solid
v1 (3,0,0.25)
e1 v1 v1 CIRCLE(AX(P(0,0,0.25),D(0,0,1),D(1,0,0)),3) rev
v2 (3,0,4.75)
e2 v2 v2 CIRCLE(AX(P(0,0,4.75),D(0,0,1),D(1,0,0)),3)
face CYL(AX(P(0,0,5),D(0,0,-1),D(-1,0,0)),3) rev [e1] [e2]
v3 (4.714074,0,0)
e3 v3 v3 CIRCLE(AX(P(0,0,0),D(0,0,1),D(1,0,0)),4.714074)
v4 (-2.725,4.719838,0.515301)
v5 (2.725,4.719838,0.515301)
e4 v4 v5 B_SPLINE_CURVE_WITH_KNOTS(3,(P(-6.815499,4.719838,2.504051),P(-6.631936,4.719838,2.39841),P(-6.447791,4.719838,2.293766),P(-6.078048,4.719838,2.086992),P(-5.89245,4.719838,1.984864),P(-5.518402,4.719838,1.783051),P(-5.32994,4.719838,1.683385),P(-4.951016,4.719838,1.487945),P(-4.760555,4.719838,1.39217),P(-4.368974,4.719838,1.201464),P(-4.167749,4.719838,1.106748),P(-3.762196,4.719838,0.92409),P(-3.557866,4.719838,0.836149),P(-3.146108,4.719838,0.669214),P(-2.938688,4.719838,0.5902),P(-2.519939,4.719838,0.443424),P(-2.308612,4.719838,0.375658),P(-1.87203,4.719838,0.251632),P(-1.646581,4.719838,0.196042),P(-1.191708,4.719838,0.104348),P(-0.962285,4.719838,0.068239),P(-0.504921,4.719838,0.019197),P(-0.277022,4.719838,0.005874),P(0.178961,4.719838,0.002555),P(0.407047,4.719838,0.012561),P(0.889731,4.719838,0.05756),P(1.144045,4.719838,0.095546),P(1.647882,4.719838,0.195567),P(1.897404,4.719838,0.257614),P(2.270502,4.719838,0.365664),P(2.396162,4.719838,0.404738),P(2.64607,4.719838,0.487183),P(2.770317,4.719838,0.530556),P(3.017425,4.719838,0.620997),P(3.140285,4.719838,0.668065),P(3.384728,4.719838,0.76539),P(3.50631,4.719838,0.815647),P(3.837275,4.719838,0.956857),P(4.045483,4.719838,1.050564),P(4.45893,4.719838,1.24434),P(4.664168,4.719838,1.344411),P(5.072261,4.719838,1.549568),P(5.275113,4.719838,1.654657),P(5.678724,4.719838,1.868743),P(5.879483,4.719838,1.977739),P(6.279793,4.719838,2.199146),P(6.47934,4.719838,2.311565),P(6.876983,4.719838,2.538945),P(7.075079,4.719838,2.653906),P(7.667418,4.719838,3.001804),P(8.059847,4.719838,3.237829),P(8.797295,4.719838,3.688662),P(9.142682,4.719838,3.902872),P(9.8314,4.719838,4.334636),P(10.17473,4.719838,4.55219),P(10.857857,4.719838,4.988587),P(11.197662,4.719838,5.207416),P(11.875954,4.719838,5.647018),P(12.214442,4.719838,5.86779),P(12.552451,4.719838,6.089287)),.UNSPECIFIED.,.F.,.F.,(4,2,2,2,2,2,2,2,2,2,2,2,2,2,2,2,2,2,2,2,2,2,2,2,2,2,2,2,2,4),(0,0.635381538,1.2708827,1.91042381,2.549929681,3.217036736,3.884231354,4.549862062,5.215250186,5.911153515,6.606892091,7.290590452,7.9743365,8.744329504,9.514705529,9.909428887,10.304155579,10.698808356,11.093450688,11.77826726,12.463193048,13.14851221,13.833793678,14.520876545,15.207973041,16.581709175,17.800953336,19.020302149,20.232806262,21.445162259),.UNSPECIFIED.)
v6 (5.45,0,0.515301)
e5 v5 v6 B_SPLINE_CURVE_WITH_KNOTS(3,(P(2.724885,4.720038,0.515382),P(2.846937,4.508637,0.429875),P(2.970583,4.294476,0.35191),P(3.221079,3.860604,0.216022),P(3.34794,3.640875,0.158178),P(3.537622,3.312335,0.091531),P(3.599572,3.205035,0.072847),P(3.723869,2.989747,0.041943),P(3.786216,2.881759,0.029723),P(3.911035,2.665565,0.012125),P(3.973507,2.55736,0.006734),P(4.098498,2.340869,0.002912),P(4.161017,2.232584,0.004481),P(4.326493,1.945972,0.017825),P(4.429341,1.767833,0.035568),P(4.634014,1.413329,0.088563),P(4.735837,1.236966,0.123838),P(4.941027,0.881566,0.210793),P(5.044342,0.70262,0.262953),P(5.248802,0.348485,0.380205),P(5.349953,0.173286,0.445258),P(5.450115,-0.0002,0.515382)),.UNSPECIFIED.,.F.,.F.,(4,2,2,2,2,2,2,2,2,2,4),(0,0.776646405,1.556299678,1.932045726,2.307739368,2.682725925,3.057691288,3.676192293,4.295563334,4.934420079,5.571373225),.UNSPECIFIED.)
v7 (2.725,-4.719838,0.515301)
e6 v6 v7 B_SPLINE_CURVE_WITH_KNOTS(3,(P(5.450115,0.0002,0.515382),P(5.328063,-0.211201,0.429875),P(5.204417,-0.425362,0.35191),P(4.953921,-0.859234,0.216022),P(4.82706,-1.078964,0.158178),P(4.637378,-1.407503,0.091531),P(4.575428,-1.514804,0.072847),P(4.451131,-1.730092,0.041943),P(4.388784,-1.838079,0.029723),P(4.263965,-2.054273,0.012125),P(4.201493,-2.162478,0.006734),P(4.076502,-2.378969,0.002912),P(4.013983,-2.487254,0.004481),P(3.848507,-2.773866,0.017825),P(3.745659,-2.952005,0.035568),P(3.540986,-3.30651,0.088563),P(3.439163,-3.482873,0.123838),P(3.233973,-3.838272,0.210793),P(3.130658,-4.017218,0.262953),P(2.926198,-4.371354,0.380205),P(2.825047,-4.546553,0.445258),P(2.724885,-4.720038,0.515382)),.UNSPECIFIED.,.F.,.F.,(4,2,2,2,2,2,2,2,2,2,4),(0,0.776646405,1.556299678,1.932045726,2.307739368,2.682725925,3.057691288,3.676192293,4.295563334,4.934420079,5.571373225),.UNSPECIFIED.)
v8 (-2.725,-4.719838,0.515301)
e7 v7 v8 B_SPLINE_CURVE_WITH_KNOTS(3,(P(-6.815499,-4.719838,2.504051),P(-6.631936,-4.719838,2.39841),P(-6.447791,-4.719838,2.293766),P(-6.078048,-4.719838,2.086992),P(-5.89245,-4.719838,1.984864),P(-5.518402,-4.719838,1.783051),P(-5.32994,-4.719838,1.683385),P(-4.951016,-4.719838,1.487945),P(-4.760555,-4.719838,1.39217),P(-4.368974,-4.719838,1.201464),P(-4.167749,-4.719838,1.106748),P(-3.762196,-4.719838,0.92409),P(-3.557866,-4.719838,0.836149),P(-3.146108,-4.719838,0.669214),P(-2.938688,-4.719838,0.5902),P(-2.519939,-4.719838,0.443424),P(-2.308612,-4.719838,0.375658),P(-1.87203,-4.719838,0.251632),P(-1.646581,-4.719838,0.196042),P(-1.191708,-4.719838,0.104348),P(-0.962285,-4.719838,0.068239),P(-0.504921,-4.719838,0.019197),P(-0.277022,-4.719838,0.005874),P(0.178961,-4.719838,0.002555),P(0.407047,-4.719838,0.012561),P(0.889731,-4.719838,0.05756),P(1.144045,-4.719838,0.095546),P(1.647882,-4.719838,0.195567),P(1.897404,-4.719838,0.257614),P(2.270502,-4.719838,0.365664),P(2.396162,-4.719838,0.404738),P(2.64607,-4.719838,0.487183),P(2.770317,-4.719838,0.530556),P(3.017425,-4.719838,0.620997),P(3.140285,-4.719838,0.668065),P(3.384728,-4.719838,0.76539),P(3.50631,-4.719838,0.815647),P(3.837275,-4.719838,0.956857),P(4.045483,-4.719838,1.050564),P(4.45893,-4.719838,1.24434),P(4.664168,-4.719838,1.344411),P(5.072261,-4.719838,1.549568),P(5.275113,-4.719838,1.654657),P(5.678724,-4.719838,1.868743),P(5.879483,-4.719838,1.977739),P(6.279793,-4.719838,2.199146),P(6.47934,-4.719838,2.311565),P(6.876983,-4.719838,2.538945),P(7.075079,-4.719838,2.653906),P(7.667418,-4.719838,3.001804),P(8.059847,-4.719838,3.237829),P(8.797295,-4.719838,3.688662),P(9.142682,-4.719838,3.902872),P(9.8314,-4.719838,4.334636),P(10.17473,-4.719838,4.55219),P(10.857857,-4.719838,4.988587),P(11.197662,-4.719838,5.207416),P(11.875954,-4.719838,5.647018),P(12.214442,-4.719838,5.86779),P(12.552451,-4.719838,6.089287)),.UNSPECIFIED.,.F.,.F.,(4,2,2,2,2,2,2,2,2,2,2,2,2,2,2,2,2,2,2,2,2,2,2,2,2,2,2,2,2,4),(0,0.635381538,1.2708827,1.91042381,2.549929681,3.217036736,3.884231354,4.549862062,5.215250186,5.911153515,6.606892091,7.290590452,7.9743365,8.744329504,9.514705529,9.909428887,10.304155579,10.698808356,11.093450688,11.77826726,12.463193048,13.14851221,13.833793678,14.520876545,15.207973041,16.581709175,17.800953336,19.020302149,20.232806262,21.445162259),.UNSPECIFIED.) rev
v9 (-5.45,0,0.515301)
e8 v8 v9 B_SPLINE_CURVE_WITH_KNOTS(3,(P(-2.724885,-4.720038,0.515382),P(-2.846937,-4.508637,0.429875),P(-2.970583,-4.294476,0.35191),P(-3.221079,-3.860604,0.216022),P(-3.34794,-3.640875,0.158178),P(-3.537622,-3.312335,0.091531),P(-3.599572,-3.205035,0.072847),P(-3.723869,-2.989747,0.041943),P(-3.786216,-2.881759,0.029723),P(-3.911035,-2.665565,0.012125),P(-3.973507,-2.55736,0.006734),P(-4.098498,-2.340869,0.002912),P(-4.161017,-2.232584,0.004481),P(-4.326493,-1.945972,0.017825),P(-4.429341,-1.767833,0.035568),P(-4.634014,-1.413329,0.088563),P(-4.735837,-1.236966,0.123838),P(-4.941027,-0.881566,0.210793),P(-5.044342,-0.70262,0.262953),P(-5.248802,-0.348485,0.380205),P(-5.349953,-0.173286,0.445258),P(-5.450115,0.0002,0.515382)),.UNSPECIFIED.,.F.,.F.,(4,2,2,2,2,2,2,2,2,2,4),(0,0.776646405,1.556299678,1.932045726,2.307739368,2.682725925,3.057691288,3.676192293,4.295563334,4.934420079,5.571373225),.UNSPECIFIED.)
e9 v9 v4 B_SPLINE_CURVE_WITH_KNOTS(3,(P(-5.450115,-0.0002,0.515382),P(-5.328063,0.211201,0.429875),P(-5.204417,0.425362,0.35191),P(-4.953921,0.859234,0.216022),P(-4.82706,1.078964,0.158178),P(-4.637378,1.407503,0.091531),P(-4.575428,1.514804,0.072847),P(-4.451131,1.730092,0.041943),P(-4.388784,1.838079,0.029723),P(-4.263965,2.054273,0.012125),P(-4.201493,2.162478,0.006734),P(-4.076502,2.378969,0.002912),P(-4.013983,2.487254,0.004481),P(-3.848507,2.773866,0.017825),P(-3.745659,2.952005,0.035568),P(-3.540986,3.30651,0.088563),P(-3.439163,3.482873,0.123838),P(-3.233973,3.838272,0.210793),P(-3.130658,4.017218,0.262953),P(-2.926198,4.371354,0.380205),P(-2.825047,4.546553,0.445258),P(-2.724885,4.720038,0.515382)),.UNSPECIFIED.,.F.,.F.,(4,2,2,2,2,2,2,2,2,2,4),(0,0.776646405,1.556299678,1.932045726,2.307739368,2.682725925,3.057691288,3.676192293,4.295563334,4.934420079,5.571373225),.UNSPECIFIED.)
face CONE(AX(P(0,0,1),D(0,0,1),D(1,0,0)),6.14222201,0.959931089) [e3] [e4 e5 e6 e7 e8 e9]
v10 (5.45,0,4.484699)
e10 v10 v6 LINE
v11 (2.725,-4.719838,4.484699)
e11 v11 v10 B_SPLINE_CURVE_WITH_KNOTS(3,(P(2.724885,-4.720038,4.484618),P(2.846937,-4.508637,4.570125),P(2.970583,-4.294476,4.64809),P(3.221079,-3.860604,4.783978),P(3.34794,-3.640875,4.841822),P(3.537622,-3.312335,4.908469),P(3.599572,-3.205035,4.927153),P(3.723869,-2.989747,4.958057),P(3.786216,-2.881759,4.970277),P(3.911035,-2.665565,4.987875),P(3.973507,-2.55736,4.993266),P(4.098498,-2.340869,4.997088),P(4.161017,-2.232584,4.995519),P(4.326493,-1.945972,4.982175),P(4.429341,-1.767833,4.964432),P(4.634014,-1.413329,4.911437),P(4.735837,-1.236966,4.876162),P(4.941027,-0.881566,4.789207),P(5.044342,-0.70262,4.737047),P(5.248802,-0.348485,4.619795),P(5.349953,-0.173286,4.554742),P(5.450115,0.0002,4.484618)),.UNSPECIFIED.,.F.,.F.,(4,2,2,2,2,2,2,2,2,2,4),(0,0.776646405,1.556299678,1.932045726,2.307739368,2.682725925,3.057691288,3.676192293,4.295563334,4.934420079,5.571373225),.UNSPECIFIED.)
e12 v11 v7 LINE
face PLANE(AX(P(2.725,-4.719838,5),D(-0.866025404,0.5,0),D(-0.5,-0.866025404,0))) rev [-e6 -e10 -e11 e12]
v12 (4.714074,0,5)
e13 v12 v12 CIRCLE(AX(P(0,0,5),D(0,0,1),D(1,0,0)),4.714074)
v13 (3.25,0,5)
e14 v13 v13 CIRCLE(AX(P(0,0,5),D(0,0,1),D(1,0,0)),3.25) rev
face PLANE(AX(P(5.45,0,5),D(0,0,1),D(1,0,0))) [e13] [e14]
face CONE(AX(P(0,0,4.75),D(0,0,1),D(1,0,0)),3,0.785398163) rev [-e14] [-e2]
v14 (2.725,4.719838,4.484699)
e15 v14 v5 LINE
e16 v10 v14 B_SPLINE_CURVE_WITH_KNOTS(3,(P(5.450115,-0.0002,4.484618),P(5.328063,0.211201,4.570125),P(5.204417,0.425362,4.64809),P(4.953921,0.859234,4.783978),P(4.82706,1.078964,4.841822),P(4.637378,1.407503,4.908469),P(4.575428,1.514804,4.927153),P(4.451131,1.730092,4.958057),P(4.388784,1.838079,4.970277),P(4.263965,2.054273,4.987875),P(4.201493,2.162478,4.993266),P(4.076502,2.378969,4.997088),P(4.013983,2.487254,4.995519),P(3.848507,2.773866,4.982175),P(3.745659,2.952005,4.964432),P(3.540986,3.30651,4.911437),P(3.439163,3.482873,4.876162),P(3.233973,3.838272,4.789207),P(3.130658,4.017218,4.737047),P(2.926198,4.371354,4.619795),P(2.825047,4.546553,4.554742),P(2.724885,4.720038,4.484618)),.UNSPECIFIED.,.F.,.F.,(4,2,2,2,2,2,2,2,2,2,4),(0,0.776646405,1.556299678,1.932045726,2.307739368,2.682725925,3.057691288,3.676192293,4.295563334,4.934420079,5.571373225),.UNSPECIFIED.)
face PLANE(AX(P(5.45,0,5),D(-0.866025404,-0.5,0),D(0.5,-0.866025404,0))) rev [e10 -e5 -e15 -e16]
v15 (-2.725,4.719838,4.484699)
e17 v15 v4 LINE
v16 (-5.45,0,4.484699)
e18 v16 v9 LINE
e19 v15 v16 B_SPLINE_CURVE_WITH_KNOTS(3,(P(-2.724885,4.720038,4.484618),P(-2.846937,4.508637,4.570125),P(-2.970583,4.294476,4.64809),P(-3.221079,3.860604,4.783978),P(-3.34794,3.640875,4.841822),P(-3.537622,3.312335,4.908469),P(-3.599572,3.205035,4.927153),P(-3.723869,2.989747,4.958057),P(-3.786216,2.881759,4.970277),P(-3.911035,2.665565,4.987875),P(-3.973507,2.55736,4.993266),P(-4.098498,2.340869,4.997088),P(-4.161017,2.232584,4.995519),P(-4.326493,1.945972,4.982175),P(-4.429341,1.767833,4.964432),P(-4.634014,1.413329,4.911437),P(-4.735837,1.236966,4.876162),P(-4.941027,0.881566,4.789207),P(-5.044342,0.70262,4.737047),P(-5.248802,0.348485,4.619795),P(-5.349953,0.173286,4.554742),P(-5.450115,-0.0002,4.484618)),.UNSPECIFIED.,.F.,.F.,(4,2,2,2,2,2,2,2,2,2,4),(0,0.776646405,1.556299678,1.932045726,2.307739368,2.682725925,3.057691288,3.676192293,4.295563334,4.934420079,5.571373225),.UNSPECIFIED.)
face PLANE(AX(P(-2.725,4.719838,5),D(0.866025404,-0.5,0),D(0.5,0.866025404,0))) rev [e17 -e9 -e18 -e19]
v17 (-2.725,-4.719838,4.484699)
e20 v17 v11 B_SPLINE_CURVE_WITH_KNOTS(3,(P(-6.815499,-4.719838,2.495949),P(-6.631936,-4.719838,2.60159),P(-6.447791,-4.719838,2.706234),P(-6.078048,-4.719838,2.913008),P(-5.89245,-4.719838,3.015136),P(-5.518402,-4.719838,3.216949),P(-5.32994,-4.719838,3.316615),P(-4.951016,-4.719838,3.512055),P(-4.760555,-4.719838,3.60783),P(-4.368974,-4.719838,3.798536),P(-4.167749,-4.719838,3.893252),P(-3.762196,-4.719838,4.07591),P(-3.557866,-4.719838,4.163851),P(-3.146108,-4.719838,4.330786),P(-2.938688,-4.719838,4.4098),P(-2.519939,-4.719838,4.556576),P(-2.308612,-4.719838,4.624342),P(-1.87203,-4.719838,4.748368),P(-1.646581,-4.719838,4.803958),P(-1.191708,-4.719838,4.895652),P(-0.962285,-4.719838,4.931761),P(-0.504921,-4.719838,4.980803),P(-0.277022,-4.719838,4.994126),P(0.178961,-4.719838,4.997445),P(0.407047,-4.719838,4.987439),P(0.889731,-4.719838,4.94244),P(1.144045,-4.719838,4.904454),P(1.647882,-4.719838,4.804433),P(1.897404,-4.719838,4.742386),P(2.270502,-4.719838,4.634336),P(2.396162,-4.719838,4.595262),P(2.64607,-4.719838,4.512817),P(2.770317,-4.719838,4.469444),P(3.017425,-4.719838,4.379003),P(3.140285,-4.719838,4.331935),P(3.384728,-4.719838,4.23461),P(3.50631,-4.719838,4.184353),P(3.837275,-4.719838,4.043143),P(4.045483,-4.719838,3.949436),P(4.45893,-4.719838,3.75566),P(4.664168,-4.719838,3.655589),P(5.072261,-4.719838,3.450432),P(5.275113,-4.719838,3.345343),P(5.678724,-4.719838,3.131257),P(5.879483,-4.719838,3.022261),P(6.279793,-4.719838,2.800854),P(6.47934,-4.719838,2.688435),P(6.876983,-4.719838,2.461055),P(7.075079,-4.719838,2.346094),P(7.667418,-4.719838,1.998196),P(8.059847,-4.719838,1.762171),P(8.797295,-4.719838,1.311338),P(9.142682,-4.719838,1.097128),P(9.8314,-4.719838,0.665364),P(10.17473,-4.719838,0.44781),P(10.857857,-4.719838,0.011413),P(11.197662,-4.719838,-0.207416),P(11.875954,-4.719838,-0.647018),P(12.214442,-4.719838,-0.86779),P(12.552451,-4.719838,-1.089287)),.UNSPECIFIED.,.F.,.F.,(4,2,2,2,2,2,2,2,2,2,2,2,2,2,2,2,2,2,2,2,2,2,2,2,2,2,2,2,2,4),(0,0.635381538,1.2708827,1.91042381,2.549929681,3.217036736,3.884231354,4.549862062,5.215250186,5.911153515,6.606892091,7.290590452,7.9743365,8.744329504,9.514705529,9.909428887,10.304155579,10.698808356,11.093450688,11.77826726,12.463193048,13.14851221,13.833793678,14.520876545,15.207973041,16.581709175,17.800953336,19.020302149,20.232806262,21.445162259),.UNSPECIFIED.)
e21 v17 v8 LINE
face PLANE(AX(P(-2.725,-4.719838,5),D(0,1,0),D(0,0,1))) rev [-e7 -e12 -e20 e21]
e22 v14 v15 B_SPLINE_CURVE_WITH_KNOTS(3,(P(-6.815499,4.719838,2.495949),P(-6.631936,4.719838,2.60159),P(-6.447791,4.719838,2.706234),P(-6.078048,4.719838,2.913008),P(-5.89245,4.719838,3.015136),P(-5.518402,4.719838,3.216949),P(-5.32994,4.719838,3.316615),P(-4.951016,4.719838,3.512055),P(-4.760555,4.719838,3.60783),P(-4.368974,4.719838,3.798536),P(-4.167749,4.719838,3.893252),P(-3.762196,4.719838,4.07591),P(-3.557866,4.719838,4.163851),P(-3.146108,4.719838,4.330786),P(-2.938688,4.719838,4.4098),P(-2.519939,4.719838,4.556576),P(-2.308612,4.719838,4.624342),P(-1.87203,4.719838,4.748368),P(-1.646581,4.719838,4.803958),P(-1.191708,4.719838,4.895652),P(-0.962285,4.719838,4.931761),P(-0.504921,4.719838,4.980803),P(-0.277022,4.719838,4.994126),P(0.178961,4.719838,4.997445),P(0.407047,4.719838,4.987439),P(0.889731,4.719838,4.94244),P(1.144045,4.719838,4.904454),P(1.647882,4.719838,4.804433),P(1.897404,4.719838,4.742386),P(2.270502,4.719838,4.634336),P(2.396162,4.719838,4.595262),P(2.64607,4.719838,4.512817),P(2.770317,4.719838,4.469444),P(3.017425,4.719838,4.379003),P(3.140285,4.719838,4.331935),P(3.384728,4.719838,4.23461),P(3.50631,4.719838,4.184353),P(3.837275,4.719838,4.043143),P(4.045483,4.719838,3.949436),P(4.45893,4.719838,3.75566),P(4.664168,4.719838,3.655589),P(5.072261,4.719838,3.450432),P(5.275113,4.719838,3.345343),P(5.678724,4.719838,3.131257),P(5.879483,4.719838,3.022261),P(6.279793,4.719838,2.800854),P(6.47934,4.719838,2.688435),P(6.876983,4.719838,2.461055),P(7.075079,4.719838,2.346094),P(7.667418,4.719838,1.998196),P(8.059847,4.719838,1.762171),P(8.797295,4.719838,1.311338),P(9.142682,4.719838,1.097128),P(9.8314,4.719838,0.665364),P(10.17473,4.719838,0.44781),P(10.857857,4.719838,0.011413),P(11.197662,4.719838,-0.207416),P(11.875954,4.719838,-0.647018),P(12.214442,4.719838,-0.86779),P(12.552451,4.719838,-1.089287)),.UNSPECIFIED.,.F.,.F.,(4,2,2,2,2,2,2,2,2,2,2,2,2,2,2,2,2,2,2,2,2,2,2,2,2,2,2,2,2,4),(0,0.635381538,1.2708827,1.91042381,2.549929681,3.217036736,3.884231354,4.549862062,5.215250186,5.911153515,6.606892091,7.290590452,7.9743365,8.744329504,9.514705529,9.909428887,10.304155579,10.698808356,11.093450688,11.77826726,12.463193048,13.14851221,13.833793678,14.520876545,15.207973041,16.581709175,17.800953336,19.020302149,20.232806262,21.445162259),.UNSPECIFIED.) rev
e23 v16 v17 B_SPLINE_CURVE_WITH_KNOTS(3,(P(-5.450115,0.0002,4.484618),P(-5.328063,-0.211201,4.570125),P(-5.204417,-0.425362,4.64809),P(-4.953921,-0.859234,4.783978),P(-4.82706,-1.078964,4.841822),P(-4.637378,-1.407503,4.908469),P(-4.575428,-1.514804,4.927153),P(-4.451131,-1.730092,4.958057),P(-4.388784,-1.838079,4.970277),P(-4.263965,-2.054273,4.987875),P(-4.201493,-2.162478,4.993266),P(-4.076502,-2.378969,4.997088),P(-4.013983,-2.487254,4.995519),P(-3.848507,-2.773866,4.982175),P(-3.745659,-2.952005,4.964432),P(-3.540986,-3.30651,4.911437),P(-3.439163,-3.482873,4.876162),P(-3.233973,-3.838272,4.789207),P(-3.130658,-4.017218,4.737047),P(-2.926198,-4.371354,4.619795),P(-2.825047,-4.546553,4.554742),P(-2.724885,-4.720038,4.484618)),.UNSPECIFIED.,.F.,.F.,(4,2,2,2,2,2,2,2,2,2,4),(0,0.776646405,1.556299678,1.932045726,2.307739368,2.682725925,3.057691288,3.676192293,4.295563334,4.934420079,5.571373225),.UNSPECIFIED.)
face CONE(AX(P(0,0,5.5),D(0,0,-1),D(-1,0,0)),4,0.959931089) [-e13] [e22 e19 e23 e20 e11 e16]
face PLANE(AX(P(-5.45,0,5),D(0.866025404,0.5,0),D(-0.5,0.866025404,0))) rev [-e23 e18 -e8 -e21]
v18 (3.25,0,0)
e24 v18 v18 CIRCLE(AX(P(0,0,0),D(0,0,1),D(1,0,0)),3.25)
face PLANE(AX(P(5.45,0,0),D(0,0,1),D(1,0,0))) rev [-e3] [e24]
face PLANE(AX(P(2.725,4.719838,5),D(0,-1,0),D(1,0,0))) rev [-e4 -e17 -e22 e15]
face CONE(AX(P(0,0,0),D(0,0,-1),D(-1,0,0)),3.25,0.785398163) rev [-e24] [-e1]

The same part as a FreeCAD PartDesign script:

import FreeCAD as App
import Part
import Sketcher

V = App.Vector
Q = App.Units.Quantity


def edges_at(feature, points):
    """Names of the edges that pass closest to the given points."""
    edges = feature.Shape.Edges
    near = lambda p: min(range(len(edges)), key=lambda i: edges[i].distToShape(Part.Vertex(*p))[0])
    return sorted({f"Edge{near(p) + 1}" for p in points})


def add_polygon(sketch, points):
    """Adds a closed chain of lines whose ends are joined by coincident constraints."""
    first, n = sketch.GeometryCount, len(points)
    for a, b in zip(points, points[1:] + points[:1]):
        sketch.addGeometry(Part.LineSegment(App.Vector(*a, 0), App.Vector(*b, 0)), False)
    for i in range(n):
        sketch.addConstraint(Sketcher.Constraint("Coincident", first + i, 2, first + (i + 1) % n, 1))

doc = App.newDocument("Part")
body = doc.addObject("PartDesign::Body", "Body")

sketch1 = body.newObject("Sketcher::SketchObject", "Sketch")
sketch1.AttachmentSupport = (doc.getObject("XY_Plane"), [""])
sketch1.MapMode = "FlatFace"
add_polygon(sketch1, [(5.45, 0), (2.725, 4.719838), (-2.725, 4.719838), (-5.45, 0), (-2.725, -4.719838), (2.725, -4.719838)])
sketch1.addGeometry(Part.Circle(V(0, 0, 0), V(0, 0, 1), 3), False)
sketch1.addConstraint(Sketcher.Constraint("Horizontal", 1))
sketch1.addConstraint(Sketcher.Constraint("Horizontal", 4))
sketch1.addConstraint(Sketcher.Constraint("Coincident", 6, 3, -1, 1))
sketch1.addConstraint(Sketcher.Constraint("Symmetric", 0, 2, 3, 2, -1, 1))
sketch1.addConstraint(Sketcher.Constraint("Symmetric", 2, 2, 5, 2, -1, 1))
sketch1.addConstraint(Sketcher.Constraint("PointOnObject", 2, 2, -1))
sketch1.addConstraint(Sketcher.Constraint("Parallel", 2, 5))
sketch1.addConstraint(Sketcher.Constraint("Vertical", 1, 2, 3, 2))
sketch1.addConstraint(Sketcher.Constraint("Diameter", 6, 6.0))
sketch1.addConstraint(Sketcher.Constraint("Angle", 0, Q("120 deg")))
sketch1.addConstraint(Sketcher.Constraint("DistanceX", 1, 2, 1, 1, 5.45))
sketch1.addConstraint(Sketcher.Constraint("Distance", 0, 5.45))
pad1 = body.newObject("PartDesign::Pad", "Pad")
pad1.Profile = sketch1
pad1.Length = 5
doc.recompute()

chamfer = body.newObject("PartDesign::Chamfer", "Chamfer")
chamfer.Base = (pad1, edges_at(pad1, [(-3, 0, 0), (-3, 0, 5)]))
chamfer.Size = 0.25

sketch2 = body.newObject("Sketcher::SketchObject", "Sketch001")
sketch2.AttachmentSupport = (doc.getObject("XZ_Plane"), [""])
sketch2.MapMode = "FlatFace"
add_polygon(sketch2, [(-1, 5.5), (-4, 5.5), (-6.142222, 4), (-6.142222, 1), (-4, -0.5), (-1, -0.5), (-1, -1.980198), (-7.7509, -1.980198), (-7.7509, 6.984003), (-1, 6.984003)])
sketch2.addConstraint(Sketcher.Constraint("Horizontal", 0))
sketch2.addConstraint(Sketcher.Constraint("Vertical", 2))
sketch2.addConstraint(Sketcher.Constraint("Horizontal", 4))
sketch2.addConstraint(Sketcher.Constraint("Vertical", 5))
sketch2.addConstraint(Sketcher.Constraint("Horizontal", 6))
sketch2.addConstraint(Sketcher.Constraint("Vertical", 7))
sketch2.addConstraint(Sketcher.Constraint("Horizontal", 8))
sketch2.addConstraint(Sketcher.Constraint("Vertical", 9))
sketch2.addConstraint(Sketcher.Constraint("Vertical", 0, 2, 3, 2))
sketch2.addConstraint(Sketcher.Constraint("Vertical", 5, 2, 8, 2))
sketch2.addConstraint(Sketcher.Constraint("Equal", 4, 2))
sketch2.addConstraint(Sketcher.Constraint("Equal", 1, 3))
sketch2.addConstraint(Sketcher.Constraint("DistanceX", 0, 2, 0, 1, 3.0))
sketch2.addConstraint(Sketcher.Constraint("Angle", 1, Q("-145 deg")))
sketch2.addConstraint(Sketcher.Constraint("DistanceX", 0, 2, -1, 1, 4.0))
sketch2.addConstraint(Sketcher.Constraint("DistanceY", -1, 1, 1, 2, 4.0))
sketch2.addConstraint(Sketcher.Constraint("DistanceY", 3, 2, 0, 2, 6.0))
sketch2.addConstraint(Sketcher.Constraint("DistanceX", 6, 2, 6, 1, 6.7509))
sketch2.addConstraint(Sketcher.Constraint("DistanceY", 5, 2, 5, 1, 1.480198))
sketch2.addConstraint(Sketcher.Constraint("DistanceY", 7, 1, 7, 2, 8.964201))
groove = body.newObject("PartDesign::Groove", "Groove")
groove.Profile = sketch2
groove.ReferenceAxis = (sketch2, ["V_Axis"])
groove.Angle = 360

doc.recompute()
